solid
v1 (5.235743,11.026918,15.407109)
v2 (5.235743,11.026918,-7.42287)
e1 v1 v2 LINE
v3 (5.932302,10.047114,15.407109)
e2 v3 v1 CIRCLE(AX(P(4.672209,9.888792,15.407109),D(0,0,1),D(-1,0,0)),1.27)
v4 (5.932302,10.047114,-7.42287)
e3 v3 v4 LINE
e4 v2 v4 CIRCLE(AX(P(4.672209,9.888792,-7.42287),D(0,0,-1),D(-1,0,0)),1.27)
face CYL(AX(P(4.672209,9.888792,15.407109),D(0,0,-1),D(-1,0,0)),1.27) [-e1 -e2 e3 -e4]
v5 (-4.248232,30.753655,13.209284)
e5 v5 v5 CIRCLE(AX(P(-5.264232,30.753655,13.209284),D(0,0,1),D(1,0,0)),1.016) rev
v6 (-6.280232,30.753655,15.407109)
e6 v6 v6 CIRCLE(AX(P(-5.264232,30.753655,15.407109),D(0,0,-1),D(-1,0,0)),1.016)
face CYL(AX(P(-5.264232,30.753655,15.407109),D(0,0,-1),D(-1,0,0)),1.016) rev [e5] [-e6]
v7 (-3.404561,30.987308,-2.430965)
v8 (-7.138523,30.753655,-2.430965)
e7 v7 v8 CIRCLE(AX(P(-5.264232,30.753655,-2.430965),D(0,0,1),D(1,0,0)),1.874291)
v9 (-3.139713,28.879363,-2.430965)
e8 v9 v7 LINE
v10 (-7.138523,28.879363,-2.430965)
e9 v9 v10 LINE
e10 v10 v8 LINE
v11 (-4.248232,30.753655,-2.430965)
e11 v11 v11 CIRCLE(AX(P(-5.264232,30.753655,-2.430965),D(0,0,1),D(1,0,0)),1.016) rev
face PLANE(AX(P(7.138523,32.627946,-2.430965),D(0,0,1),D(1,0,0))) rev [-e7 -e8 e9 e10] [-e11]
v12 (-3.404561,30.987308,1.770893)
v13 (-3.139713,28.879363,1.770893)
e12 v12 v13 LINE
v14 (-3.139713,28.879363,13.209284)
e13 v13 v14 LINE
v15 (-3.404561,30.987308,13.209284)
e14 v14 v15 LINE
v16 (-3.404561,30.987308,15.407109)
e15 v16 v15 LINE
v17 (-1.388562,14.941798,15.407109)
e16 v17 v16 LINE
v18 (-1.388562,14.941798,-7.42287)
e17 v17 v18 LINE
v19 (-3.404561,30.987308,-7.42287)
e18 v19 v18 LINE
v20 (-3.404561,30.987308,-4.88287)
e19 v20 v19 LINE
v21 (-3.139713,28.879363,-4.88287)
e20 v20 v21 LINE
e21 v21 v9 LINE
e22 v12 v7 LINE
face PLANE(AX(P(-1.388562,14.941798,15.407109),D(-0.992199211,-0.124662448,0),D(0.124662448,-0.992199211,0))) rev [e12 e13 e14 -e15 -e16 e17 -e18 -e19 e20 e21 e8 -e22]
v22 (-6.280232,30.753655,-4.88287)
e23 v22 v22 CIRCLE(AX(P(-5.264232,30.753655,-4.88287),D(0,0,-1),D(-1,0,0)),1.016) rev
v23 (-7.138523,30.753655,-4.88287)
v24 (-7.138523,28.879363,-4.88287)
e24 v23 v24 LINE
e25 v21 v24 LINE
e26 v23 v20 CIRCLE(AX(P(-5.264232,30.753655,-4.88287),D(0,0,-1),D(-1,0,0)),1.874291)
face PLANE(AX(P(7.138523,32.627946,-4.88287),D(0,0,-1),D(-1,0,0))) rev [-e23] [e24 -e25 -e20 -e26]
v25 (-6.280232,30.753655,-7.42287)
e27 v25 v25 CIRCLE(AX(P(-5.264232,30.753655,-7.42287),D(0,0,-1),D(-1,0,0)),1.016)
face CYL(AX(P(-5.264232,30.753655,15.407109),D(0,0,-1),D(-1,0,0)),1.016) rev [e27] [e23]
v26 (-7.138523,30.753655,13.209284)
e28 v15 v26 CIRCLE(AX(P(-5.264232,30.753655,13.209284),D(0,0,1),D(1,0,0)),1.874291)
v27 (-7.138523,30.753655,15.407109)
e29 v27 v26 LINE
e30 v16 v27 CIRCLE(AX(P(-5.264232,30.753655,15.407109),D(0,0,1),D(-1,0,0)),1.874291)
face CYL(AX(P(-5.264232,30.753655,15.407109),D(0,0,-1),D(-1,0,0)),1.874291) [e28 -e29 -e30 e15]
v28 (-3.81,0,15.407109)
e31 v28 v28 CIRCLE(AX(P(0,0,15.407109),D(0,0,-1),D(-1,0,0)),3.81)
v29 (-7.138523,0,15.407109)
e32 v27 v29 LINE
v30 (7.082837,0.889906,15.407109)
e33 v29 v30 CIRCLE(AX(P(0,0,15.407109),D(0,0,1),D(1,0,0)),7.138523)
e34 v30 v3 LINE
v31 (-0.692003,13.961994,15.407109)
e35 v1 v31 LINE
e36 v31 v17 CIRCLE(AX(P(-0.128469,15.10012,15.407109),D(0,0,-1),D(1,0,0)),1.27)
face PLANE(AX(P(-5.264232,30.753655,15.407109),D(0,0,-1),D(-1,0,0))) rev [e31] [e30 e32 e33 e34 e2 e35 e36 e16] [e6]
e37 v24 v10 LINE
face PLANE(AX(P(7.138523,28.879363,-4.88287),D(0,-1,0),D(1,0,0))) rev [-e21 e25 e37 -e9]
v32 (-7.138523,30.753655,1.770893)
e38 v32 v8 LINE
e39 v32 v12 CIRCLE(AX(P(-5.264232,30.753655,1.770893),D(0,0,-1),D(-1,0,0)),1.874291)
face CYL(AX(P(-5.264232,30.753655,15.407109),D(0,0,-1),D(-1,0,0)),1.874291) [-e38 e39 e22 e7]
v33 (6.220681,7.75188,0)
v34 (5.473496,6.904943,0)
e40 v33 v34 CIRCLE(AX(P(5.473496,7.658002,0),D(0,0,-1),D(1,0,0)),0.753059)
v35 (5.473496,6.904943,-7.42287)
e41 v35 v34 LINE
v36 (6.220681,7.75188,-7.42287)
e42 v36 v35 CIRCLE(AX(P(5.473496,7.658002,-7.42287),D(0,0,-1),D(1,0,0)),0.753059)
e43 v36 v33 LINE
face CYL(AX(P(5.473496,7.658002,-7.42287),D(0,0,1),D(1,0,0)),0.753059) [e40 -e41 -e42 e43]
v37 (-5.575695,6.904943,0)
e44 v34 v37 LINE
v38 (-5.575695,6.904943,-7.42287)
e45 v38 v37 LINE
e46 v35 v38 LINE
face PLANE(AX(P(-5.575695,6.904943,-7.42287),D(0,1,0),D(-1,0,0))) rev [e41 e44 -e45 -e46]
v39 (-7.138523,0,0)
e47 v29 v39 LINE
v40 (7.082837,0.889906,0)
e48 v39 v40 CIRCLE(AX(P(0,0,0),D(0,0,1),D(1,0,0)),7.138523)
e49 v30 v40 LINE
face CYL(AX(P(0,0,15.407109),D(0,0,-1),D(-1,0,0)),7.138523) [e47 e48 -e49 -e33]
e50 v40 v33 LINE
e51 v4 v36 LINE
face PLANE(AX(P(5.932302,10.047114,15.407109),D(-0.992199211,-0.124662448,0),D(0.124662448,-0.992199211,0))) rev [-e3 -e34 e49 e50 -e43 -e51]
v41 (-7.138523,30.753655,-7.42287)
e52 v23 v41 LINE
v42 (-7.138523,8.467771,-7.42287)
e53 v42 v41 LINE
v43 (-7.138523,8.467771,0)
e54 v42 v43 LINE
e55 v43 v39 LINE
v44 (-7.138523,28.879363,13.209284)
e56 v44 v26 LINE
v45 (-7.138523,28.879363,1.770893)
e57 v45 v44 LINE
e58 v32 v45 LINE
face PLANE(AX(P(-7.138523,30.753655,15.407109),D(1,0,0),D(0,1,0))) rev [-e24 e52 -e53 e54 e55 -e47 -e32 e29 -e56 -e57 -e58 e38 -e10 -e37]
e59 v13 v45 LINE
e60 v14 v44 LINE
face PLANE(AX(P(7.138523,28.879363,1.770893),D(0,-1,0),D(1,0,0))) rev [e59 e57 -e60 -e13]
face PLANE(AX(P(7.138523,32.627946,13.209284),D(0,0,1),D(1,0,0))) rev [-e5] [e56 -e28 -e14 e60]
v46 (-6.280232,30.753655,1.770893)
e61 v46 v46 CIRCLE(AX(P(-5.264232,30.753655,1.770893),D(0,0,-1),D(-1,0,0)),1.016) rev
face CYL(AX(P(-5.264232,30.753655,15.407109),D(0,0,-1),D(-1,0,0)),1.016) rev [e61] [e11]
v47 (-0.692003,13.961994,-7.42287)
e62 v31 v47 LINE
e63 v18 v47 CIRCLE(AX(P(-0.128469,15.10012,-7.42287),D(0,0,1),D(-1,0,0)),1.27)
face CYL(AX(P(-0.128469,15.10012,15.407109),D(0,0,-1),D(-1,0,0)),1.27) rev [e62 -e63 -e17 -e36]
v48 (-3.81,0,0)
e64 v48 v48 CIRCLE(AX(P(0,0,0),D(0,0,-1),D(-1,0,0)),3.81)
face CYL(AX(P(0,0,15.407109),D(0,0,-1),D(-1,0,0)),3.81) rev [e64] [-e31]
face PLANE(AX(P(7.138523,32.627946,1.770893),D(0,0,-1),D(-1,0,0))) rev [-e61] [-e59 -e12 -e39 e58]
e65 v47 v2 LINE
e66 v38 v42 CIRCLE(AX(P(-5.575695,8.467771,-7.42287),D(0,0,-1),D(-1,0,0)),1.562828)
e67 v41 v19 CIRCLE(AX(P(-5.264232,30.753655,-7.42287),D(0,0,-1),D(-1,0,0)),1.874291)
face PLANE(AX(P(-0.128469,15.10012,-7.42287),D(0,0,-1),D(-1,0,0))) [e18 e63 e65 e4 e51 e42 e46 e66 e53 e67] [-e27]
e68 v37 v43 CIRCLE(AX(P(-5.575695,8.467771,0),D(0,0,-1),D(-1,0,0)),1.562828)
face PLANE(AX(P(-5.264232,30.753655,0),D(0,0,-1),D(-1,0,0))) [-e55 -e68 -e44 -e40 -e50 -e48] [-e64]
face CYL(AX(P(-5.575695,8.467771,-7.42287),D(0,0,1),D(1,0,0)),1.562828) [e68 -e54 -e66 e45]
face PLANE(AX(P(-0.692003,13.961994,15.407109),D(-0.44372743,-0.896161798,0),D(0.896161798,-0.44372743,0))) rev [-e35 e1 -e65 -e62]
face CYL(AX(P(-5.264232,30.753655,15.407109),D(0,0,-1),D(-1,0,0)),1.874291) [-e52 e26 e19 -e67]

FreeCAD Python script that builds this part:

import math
import FreeCAD as App
import Part
import Sketcher

V = App.Vector
Q = App.Units.Quantity

doc = App.newDocument("Part")
body = doc.addObject("PartDesign::Body", "Body")

# Sketch on XY plane
sketch1 = doc.addObject("Sketcher::SketchObject", "Sketch")
body.addObject(sketch1)
sketch1.AttachmentSupport = (doc.XY_Plane, [""])
sketch1.MapMode = "FlatFace"
sketch1.addGeometry([
    Part.LineSegment(V(-7.138523, 30.753655, 0), V(-7.138523, 0, 0)),  # 0
    Part.ArcOfCircle(Part.Circle(V(0, 0, 0), V(0, 0, 1), 7.138523), math.radians(180), math.radians(367.161263)),  # 1
    Part.LineSegment(V(7.082837, 0.889906, 0), V(5.932302, 10.047114, 0)),  # 2
    Part.ArcOfCircle(Part.Circle(V(4.672209, 9.888792, 0), V(0, 0, 1), 1.27), math.radians(7.161263), math.radians(63.658051)),  # 3
    Part.LineSegment(V(5.235743, 11.026918, 0), V(-0.692003, 13.961994, 0)),  # 4
    Part.ArcOfCircle(Part.Circle(V(-0.128469, 15.10012, 0), V(0, 0, 1), 1.27), math.radians(-172.838737), math.radians(-116.341949)),  # 5
    Part.LineSegment(V(-1.388562, 14.941798, 0), V(-3.404561, 30.987308, 0)),  # 6
    Part.ArcOfCircle(Part.Circle(V(-5.264232, 30.753655, 0), V(0, 0, 1), 1.874291), math.radians(7.161263), math.radians(180)),  # 7
], False)
sketch1.addConstraint([
    Sketcher.Constraint("Tangent", 0, 2, 1, 1),
    Sketcher.Constraint("Tangent", 1, 2, 2, 1),
    Sketcher.Constraint("Tangent", 2, 2, 3, 1),
    Sketcher.Constraint("Tangent", 3, 2, 4, 1),
    Sketcher.Constraint("Tangent", 4, 2, 5, 2),
    Sketcher.Constraint("Tangent", 5, 1, 6, 1),
    Sketcher.Constraint("Tangent", 6, 2, 7, 1),
    Sketcher.Constraint("Tangent", 7, 2, 0, 1),
    Sketcher.Constraint("Vertical", 0),
    Sketcher.Constraint("Coincident", 1, 3, -1, 1),
    Sketcher.Constraint("Equal", 3, 5),
    Sketcher.Constraint("Parallel", 2, 6),
    Sketcher.Constraint("Radius", 3, Q("0.05 in")),
    Sketcher.Constraint("Radius", 7, 1.874291),
    Sketcher.Constraint("Radius", 1, 7.138523),
    Sketcher.Constraint("DistanceX", 7, 2, 4, 2, Q("0.2538 in")),
    Sketcher.Constraint("DistanceX", -1, 1, 2, 2, 5.932302),
    Sketcher.Constraint("DistanceY", -1, 1, 5, 1, 14.941798),
    Sketcher.Constraint("DistanceY", 3, 2, 5, 3, 4.073202),
])
pad1 = doc.addObject("PartDesign::Pad", "Pad")
body.addObject(pad1)
pad1.Profile = sketch1
pad1.Length = 15.407109

# Sketch on XY plane
sketch2 = doc.addObject("Sketcher::SketchObject", "Sketch001")
body.addObject(sketch2)
sketch2.AttachmentSupport = (doc.XY_Plane, [""])
sketch2.MapMode = "FlatFace"
sketch2.AttachmentOffset = App.Placement(V(0, 0, -7.42287), App.Rotation())
sketch2.addGeometry([
    Part.LineSegment(V(-3.404561, 30.987308, 0), V(-1.388562, 14.941798, 0)),  # 0
    Part.ArcOfCircle(Part.Circle(V(-0.128469, 15.10012, 0), V(0, 0, 1), 1.27), math.radians(-172.838737), math.radians(-116.341949)),  # 1
    Part.LineSegment(V(-0.692003, 13.961994, 0), V(5.235743, 11.026918, 0)),  # 2
    Part.ArcOfCircle(Part.Circle(V(4.672209, 9.888792, 0), V(0, 0, 1), 1.27), math.radians(7.161263), math.radians(63.658051)),  # 3
    Part.LineSegment(V(5.932302, 10.047114, 0), V(6.220681, 7.75188, 0)),  # 4
    Part.ArcOfCircle(Part.Circle(V(5.473496, 7.658002, 0), V(0, 0, 1), 0.753059), math.radians(-90), math.radians(7.161263)),  # 5
    Part.LineSegment(V(5.473496, 6.904943, 0), V(-5.575695, 6.904943, 0)),  # 6
    Part.ArcOfCircle(Part.Circle(V(-5.575695, 8.467771, 0), V(0, 0, 1), 1.562828), math.radians(180), math.radians(270)),  # 7
    Part.LineSegment(V(-7.138523, 8.467771, 0), V(-7.138523, 30.753655, 0)),  # 8
    Part.ArcOfCircle(Part.Circle(V(-5.264232, 30.753655, 0), V(0, 0, 1), 1.874291), math.radians(7.161263), math.radians(180)),  # 9
], False)
sketch2.addConstraint([
    Sketcher.Constraint("Coincident", 0, 2, 1, 1),
    Sketcher.Constraint("Coincident", 1, 2, 2, 1),
    Sketcher.Constraint("Coincident", 2, 2, 3, 2),
    Sketcher.Constraint("Coincident", 3, 1, 4, 1),
    Sketcher.Constraint("Coincident", 4, 2, 5, 2),
    Sketcher.Constraint("Coincident", 5, 1, 6, 1),
    Sketcher.Constraint("Coincident", 6, 2, 7, 2),
    Sketcher.Constraint("Coincident", 7, 1, 8, 1),
    Sketcher.Constraint("Coincident", 8, 2, 9, 2),
    Sketcher.Constraint("Coincident", 9, 1, 0, 1),
    Sketcher.Constraint("Horizontal", 6),
    Sketcher.Constraint("Vertical", 8),
    Sketcher.Constraint("Radius", 1, Q("0.05 in")),
    Sketcher.Constraint("Radius", 3, Q("0.05 in")),
    Sketcher.Constraint("Radius", 5, 0.753059),
    Sketcher.Constraint("Radius", 7, 1.562828),
    Sketcher.Constraint("Radius", 9, 1.874291),
    Sketcher.Constraint("DistanceX", 7, 1, 1, 2, Q("0.2538 in")),
    Sketcher.Constraint("DistanceX", 6, 2, 6, 1, 11.049191),
    Sketcher.Constraint("DistanceY", -1, 1, 0, 2, 14.941798),
    Sketcher.Constraint("DistanceX", -1, 1, 3, 1, 5.932302),
    Sketcher.Constraint("DistanceY", 3, 3, 1, 2, 4.073202),
    Sketcher.Constraint("DistanceX", 1, 2, 5, 3, 6.165499),
    Sketcher.Constraint("DistanceY", 2, 2, 1, 3, 4.073202),
    Sketcher.Constraint("DistanceX", 9, 1, 0, 2, 2.015999),
    Sketcher.Constraint("Distance", 0, 16.171662),
    Sketcher.Constraint("Distance", 4, 2.313279),
    Sketcher.Constraint("DistanceY", 8, 1, 8, 2, 22.285883),
    Sketcher.Constraint("DistanceX", 1, 3, -1, 1, 0.128469),
    Sketcher.Constraint("DistanceY", -1, 1, 1, 3, 15.10012),
    Sketcher.Constraint("DistanceX", -1, 1, 3, 3, 4.672209),
    Sketcher.Constraint("DistanceY", -1, 1, 7, 3, 8.467771),
    Sketcher.Constraint("DistanceX", 9, 3, -1, 1, 5.264232),
    Sketcher.Constraint("DistanceY", -1, 1, 7, 1, 8.467771),
    Sketcher.Constraint("DistanceX", 6, 2, 1, 2, 4.883692),
])
pad2 = doc.addObject("PartDesign::Pad", "Pad001")
body.addObject(pad2)
pad2.Profile = sketch2
pad2.Length = 7.42287

# Sketch on XY plane
sketch3 = doc.addObject("Sketcher::SketchObject", "Sketch002")
body.addObject(sketch3)
sketch3.AttachmentSupport = (doc.XY_Plane, [""])
sketch3.MapMode = "FlatFace"
sketch3.addGeometry(Part.Circle(V(0, 0, 0), V(0, 0, 1), 3.81), False)
sketch3.addConstraint([
    Sketcher.Constraint("Coincident", 0, 3, -1, 1),
    Sketcher.Constraint("Diameter", 0, Q("0.3 in")),
])
pocket1 = doc.addObject("PartDesign::Pocket", "Pocket")
body.addObject(pocket1)
pocket1.Profile = sketch3
pocket1.Type = "ThroughAll"
pocket1.Reversed = True

# Sketch on XY plane
sketch4 = doc.addObject("Sketcher::SketchObject", "Sketch003")
body.addObject(sketch4)
sketch4.AttachmentSupport = (doc.XY_Plane, [""])
sketch4.MapMode = "FlatFace"
sketch4.AttachmentOffset = App.Placement(V(0, 0, -7.42287), App.Rotation())
sketch4.addGeometry(Part.Circle(V(-5.264232, 30.753655, 0), V(0, 0, 1), 1.016), False)
sketch4.addConstraint([
    Sketcher.Constraint("Diameter", 0, Q("0.08 in")),
    Sketcher.Constraint("DistanceX", 0, 3, -1, 1, 5.264232),
    Sketcher.Constraint("DistanceY", -1, 1, 0, 3, 30.753655),
])
pocket2 = doc.addObject("PartDesign::Pocket", "Pocket001")
body.addObject(pocket2)
pocket2.Profile = sketch4
pocket2.Type = "ThroughAll"
pocket2.Reversed = True

# Sketch on YZ plane
sketch5 = doc.addObject("Sketcher::SketchObject", "Sketch004")
body.addObject(sketch5)
sketch5.AttachmentSupport = (doc.YZ_Plane, [""])
sketch5.MapMode = "FlatFace"
sketch5.AttachmentOffset = App.Placement(V(0, 0, -7.138523), App.Rotation())
sketch5.addGeometry([
    Part.LineSegment(V(32.627946, -4.88287, 0), V(28.879363, -4.88287, 0)),  # 0
    Part.LineSegment(V(28.879363, -4.88287, 0), V(28.879363, -2.430965, 0)),  # 1
    Part.LineSegment(V(28.879363, -2.430965, 0), V(32.627946, -2.430965, 0)),  # 2
    Part.LineSegment(V(32.627946, -2.430965, 0), V(32.627946, -4.88287, 0)),  # 3
    Part.LineSegment(V(32.627946, 1.770893, 0), V(28.879363, 1.770893, 0)),  # 4
    Part.LineSegment(V(28.879363, 1.770893, 0), V(28.879363, 13.209284, 0)),  # 5
    Part.LineSegment(V(28.879363, 13.209284, 0), V(32.627946, 13.209284, 0)),  # 6
    Part.LineSegment(V(32.627946, 13.209284, 0), V(32.627946, 1.770893, 0)),  # 7
], False)
sketch5.addConstraint([
    Sketcher.Constraint("Coincident", 0, 2, 1, 1),
    Sketcher.Constraint("Coincident", 1, 2, 2, 1),
    Sketcher.Constraint("Coincident", 2, 2, 3, 1),
    Sketcher.Constraint("Coincident", 3, 2, 0, 1),
    Sketcher.Constraint("Coincident", 4, 2, 5, 1),
    Sketcher.Constraint("Coincident", 5, 2, 6, 1),
    Sketcher.Constraint("Coincident", 6, 2, 7, 1),
    Sketcher.Constraint("Coincident", 7, 2, 4, 1),
    Sketcher.Constraint("Horizontal", 0),
    Sketcher.Constraint("Vertical", 1),
    Sketcher.Constraint("Horizontal", 2),
    Sketcher.Constraint("Vertical", 3),
    Sketcher.Constraint("Horizontal", 4),
    Sketcher.Constraint("Vertical", 5),
    Sketcher.Constraint("Horizontal", 6),
    Sketcher.Constraint("Vertical", 7),
    Sketcher.Constraint("Vertical", 1, 2, 4, 2),
    Sketcher.Constraint("Vertical", 3, 2, 6, 2),
    Sketcher.Constraint("DistanceY", 5, 1, 5, 2, 11.438392),
    Sketcher.Constraint("DistanceX", 0, 2, 0, 1, 3.748583),
    Sketcher.Constraint("DistanceY", 1, 1, 1, 2, 2.451905),
    Sketcher.Constraint("DistanceY", 0, 2, -1, 1, 4.88287),
    Sketcher.Constraint("DistanceY", 1, 2, 4, 2, 4.201858),
    Sketcher.Constraint("DistanceX", -1, 1, 0, 2, 28.879363),
])
pocket3 = doc.addObject("PartDesign::Pocket", "Pocket002")
body.addObject(pocket3)
pocket3.Profile = sketch5
pocket3.Type = "ThroughAll"
pocket3.Reversed = True

doc.recompute()
